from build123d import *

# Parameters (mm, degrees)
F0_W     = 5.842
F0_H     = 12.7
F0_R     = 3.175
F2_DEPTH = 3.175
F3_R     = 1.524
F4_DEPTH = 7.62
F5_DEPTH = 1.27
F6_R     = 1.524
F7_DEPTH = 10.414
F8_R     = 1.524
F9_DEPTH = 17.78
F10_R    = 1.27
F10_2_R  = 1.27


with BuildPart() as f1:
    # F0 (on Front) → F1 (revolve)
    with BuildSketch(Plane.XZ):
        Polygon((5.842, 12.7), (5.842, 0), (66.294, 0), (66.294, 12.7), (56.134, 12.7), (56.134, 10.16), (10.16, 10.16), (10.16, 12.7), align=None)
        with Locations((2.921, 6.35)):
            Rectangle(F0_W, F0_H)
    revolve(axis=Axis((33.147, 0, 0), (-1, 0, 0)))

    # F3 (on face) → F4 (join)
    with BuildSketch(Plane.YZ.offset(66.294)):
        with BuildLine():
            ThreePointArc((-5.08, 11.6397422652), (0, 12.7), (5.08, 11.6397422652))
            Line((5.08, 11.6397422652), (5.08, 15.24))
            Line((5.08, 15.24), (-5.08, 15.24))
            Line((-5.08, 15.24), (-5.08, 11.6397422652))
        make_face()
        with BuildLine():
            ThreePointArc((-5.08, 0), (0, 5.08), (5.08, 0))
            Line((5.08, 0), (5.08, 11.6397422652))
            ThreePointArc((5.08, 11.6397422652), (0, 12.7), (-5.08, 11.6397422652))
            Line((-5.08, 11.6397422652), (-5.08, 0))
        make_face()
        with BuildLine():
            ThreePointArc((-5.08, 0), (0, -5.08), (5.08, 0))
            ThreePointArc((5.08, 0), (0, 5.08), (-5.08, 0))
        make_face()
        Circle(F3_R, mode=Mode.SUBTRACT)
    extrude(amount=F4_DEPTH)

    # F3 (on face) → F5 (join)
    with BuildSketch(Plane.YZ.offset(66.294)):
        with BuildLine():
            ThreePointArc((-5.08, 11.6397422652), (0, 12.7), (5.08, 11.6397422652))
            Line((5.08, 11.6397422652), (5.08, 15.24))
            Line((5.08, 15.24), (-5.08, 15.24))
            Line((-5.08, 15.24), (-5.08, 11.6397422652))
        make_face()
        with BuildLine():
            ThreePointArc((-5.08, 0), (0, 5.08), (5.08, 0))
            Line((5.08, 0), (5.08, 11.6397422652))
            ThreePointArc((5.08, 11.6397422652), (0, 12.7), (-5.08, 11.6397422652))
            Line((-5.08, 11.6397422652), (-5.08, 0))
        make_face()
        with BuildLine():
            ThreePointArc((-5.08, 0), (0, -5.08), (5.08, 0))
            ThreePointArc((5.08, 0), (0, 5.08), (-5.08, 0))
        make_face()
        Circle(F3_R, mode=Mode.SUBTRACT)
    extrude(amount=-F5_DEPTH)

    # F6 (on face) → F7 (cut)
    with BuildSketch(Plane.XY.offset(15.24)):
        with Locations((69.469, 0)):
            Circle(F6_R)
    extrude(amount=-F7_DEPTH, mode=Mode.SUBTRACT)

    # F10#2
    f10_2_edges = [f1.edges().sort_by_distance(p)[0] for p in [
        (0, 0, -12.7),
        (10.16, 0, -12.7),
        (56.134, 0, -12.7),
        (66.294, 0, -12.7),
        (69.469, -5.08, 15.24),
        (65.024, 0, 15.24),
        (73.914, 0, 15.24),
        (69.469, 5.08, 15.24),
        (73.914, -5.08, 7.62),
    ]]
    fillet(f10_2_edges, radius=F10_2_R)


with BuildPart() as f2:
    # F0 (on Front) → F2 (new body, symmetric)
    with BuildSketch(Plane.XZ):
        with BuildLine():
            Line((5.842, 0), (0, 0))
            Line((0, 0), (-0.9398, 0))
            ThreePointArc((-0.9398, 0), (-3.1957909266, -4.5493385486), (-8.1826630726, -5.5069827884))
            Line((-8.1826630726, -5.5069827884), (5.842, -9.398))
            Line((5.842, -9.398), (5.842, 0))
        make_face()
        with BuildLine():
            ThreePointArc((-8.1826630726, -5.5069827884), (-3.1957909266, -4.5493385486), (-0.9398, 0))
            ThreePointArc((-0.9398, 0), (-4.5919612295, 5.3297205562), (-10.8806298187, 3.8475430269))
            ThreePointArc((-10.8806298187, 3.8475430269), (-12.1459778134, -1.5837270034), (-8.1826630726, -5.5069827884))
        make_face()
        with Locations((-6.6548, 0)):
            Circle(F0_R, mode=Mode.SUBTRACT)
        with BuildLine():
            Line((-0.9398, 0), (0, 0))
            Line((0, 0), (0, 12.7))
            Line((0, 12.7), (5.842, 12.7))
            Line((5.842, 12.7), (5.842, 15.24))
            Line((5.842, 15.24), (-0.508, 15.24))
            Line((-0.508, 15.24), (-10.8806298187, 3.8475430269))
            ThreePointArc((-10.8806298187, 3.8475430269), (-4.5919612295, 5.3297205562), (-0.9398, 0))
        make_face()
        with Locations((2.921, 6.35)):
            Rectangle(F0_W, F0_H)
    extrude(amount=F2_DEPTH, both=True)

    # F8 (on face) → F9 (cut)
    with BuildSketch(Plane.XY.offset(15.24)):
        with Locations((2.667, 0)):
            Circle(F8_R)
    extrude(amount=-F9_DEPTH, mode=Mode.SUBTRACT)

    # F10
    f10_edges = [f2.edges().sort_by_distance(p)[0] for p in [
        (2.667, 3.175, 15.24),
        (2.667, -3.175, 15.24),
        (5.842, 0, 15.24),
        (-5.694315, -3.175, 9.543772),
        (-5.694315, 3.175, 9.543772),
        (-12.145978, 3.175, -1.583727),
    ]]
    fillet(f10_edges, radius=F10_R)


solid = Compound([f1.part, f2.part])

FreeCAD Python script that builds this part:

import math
import FreeCAD as App
import Part
import Sketcher

V = App.Vector
Q = App.Units.Quantity


def edges_at(feature, points):
    """Names of the edges that pass closest to the given points."""
    edges = feature.Shape.Edges
    near = lambda p: min(range(len(edges)), key=lambda i: edges[i].distToShape(Part.Vertex(*p))[0])
    return sorted({f"Edge{near(p) + 1}" for p in points})


def add_polygon(sketch, points):
    """Adds a closed chain of lines whose ends are joined by coincident constraints."""
    first, n = sketch.GeometryCount, len(points)
    for a, b in zip(points, points[1:] + points[:1]):
        sketch.addGeometry(Part.LineSegment(App.Vector(*a, 0), App.Vector(*b, 0)), False)
    for i in range(n):
        sketch.addConstraint(Sketcher.Constraint("Coincident", first + i, 2, first + (i + 1) % n, 1))

doc = App.newDocument("Part")
params = doc.addObject("Spreadsheet::Sheet", "Params")
for row, (alias, value) in enumerate([
    ("sketch1_width", "0.4 in"),
    ("sketch1_height", "0.5 in"),
    ("sketch1_height2", "0.1 in"),
    ("sketch1_width2", "1.81 in"),
    ("revolution_angle", "360 deg"),
    ("sketch2_radius", "0.2 in"),
    ("sketch2_diameter", "0.12 in"),
    ("sketch2_height", "0.6 in"),
    ("pad1_length", "0.3 in"),
    ("sketch3_radius", "0.2 in"),
    ("sketch3_diameter", "0.12 in"),
    ("sketch3_height", "0.6 in"),
    ("pad2_length", "0.05 in"),
    ("sketch4_diameter", "0.12 in"),
    ("pocket1_length", "0.41 in"),
    ("fillet_radius", "0.05 in"),
    ("sketch5_diameter", "0.25 in"),
    ("sketch5_radius", "0.225 in"),
    ("sketch5_width", "0.25 in"),
    ("sketch5_height", "0.97 in"),
    ("pad3_length", "0.25 in"),
    ("sketch6_diameter", "0.12 in"),
    ("pocket2_length", "0.7 in"),
    ("fillet2_radius", "0.05 in"),
], start=1):
    params.set(f"A{row}", alias)
    params.set(f"B{row}", "=" + value)
    params.setAlias(f"B{row}", alias)

body = doc.addObject("PartDesign::Body", "Body")

# Sketch on XZ plane
sketch1 = body.newObject("Sketcher::SketchObject", "Sketch")
sketch1.AttachmentSupport = (doc.getObject("XZ_Plane"), [""])
sketch1.MapMode = "FlatFace"
add_polygon(sketch1, [(66.3, 0), (66.3, 12.7), (56.1, 12.7), (56.1, 10.2), (10.2, 10.2), (10.2, 12.7), (0, 12.7), (0, 0)])  # lines 0-7
sketch1.addConstraint(Sketcher.Constraint("Vertical", 0))
sketch1.addConstraint(Sketcher.Constraint("Horizontal", 1))
sketch1.addConstraint(Sketcher.Constraint("Vertical", 2))
sketch1.addConstraint(Sketcher.Constraint("Horizontal", 3))
sketch1.addConstraint(Sketcher.Constraint("Vertical", 4))
sketch1.addConstraint(Sketcher.Constraint("Horizontal", 5))
sketch1.addConstraint(Sketcher.Constraint("Vertical", 6))
sketch1.addConstraint(Sketcher.Constraint("Horizontal", 7))
sketch1.addConstraint(Sketcher.Constraint("Coincident", 6, 2, -1, 1))
sketch1.addConstraint(Sketcher.Constraint("Horizontal", 1, 2, 4, 2))
sketch1.addConstraint(Sketcher.Constraint("Equal", 1, 5))
sketch1.addConstraint(Sketcher.Constraint("DistanceX", 1, 2, 1, 1, Q("0.4 in")))
sketch1.addConstraint(Sketcher.Constraint("DistanceY", 0, 1, 0, 2, Q("0.5 in")))
sketch1.addConstraint(Sketcher.Constraint("DistanceY", 2, 2, 2, 1, Q("0.1 in")))
sketch1.addConstraint(Sketcher.Constraint("DistanceX", 3, 2, 3, 1, Q("1.81 in")))
sketch1.setExpression("Constraints[19]", "Params.sketch1_width")
sketch1.setExpression("Constraints[20]", "Params.sketch1_height")
sketch1.setExpression("Constraints[21]", "Params.sketch1_height2")
sketch1.setExpression("Constraints[22]", "Params.sketch1_width2")
revolution = body.newObject("PartDesign::Revolution", "Revolution")
revolution.Profile = sketch1
revolution.ReferenceAxis = (sketch1, ["H_Axis"])
revolution.setExpression("Angle", "Params.revolution_angle")

# Sketch on YZ plane
sketch2 = body.newObject("Sketcher::SketchObject", "Sketch001")
sketch2.AttachmentSupport = (doc.getObject("YZ_Plane"), [""])
sketch2.MapMode = "FlatFace"
sketch2.AttachmentOffset = App.Placement(V(0, 0, 2.61 * 25.4), App.Rotation())
sketch2.addGeometry(Part.LineSegment(V(5.1, 15.2, 0), V(-5.1, 15.2, 0)), False)
sketch2.addGeometry(Part.LineSegment(V(-5.1, 15.2, 0), V(-5.1, 0, 0)), False)
sketch2.addGeometry(Part.ArcOfCircle(Part.Circle(V(0, 0, 0), V(0, 0, 1), 5.1), math.radians(180), math.radians(360)), False)
sketch2.addGeometry(Part.LineSegment(V(5.1, 0, 0), V(5.1, 15.2, 0)), False)
sketch2.addGeometry(Part.Circle(V(0, 0, 0), V(0, 0, 1), 1.5), False)
sketch2.addConstraint(Sketcher.Constraint("Coincident", 0, 2, 1, 1))
sketch2.addConstraint(Sketcher.Constraint("Tangent", 1, 2, 2, 1))
sketch2.addConstraint(Sketcher.Constraint("Tangent", 2, 2, 3, 1))
sketch2.addConstraint(Sketcher.Constraint("Coincident", 3, 2, 0, 1))
sketch2.addConstraint(Sketcher.Constraint("Horizontal", 0))
sketch2.addConstraint(Sketcher.Constraint("Vertical", 1))
sketch2.addConstraint(Sketcher.Constraint("Vertical", 3))
sketch2.addConstraint(Sketcher.Constraint("Coincident", 2, 3, -1, 1))
sketch2.addConstraint(Sketcher.Constraint("Coincident", 4, 3, -1, 1))
sketch2.addConstraint(Sketcher.Constraint("Radius", 2, Q("0.2 in")))
sketch2.addConstraint(Sketcher.Constraint("Diameter", 4, Q("0.12 in")))
sketch2.addConstraint(Sketcher.Constraint("DistanceY", 1, 2, 1, 1, Q("0.6 in")))
sketch2.setExpression("Constraints[9]", "Params.sketch2_radius")
sketch2.setExpression("Constraints[10]", "Params.sketch2_diameter")
sketch2.setExpression("Constraints[11]", "Params.sketch2_height")
pad1 = body.newObject("PartDesign::Pad", "Pad")
pad1.Profile = sketch2
pad1.setExpression("Length", "Params.pad1_length")

# Sketch on YZ plane
sketch3 = body.newObject("Sketcher::SketchObject", "Sketch002")
sketch3.AttachmentSupport = (doc.getObject("YZ_Plane"), [""])
sketch3.MapMode = "FlatFace"
sketch3.AttachmentOffset = App.Placement(V(0, 0, 2.61 * 25.4), App.Rotation())
sketch3.addGeometry(Part.LineSegment(V(5.1, 15.2, 0), V(-5.1, 15.2, 0)), False)
sketch3.addGeometry(Part.LineSegment(V(-5.1, 15.2, 0), V(-5.1, 0, 0)), False)
sketch3.addGeometry(Part.ArcOfCircle(Part.Circle(V(0, 0, 0), V(0, 0, 1), 5.1), math.radians(180), math.radians(360)), False)
sketch3.addGeometry(Part.LineSegment(V(5.1, 0, 0), V(5.1, 15.2, 0)), False)
sketch3.addGeometry(Part.Circle(V(0, 0, 0), V(0, 0, 1), 1.5), False)
sketch3.addConstraint(Sketcher.Constraint("Coincident", 0, 2, 1, 1))
sketch3.addConstraint(Sketcher.Constraint("Tangent", 1, 2, 2, 1))
sketch3.addConstraint(Sketcher.Constraint("Tangent", 2, 2, 3, 1))
sketch3.addConstraint(Sketcher.Constraint("Coincident", 3, 2, 0, 1))
sketch3.addConstraint(Sketcher.Constraint("Horizontal", 0))
sketch3.addConstraint(Sketcher.Constraint("Vertical", 1))
sketch3.addConstraint(Sketcher.Constraint("Vertical", 3))
sketch3.addConstraint(Sketcher.Constraint("Coincident", 2, 3, -1, 1))
sketch3.addConstraint(Sketcher.Constraint("Coincident", 4, 3, -1, 1))
sketch3.addConstraint(Sketcher.Constraint("Radius", 2, Q("0.2 in")))
sketch3.addConstraint(Sketcher.Constraint("Diameter", 4, Q("0.12 in")))
sketch3.addConstraint(Sketcher.Constraint("DistanceY", 1, 2, 1, 1, Q("0.6 in")))
sketch3.setExpression("Constraints[9]", "Params.sketch3_radius")
sketch3.setExpression("Constraints[10]", "Params.sketch3_diameter")
sketch3.setExpression("Constraints[11]", "Params.sketch3_height")
pad2 = body.newObject("PartDesign::Pad", "Pad001")
pad2.Profile = sketch3
pad2.setExpression("Length", "Params.pad2_length")
pad2.Reversed = True

# Sketch on XY plane
sketch4 = body.newObject("Sketcher::SketchObject", "Sketch003")
sketch4.AttachmentSupport = (doc.getObject("XY_Plane"), [""])
sketch4.MapMode = "FlatFace"
sketch4.AttachmentOffset = App.Placement(V(0, 0, 0.6 * 25.4), App.Rotation())
sketch4.addGeometry(Part.Circle(V(69.5, 0, 0), V(0, 0, 1), 1.5), False)
sketch4.addConstraint(Sketcher.Constraint("PointOnObject", 0, 3, -1))
sketch4.addConstraint(Sketcher.Constraint("Diameter", 0, Q("0.12 in")))
sketch4.addConstraint(Sketcher.Constraint("DistanceX", -1, 1, 0, 3, Q("2.735 in")))
sketch4.setExpression("Constraints[1]", "Params.sketch4_diameter")
pocket1 = body.newObject("PartDesign::Pocket", "Pocket")
pocket1.Profile = sketch4
pocket1.setExpression("Length", "Params.pocket1_length")
doc.recompute()

fillet = body.newObject("PartDesign::Fillet", "Fillet")
fillet.Base = (pocket1, edges_at(pocket1, [
    (0, 0, -12.7),
    (10.16, 0, -12.7),
    (56.134, 0, -12.7),
    (66.294, 0, -12.7),
    (69.469, -5.08, 15.24),
    (65.024, 0, 15.24),
    (73.914, 0, 15.24),
    (69.469, 5.08, 15.24),
    (73.914, -5.08, 7.62),
]))
fillet.setExpression("Radius", "Params.fillet_radius")
body2 = doc.addObject("PartDesign::Body", "Body001")

# Sketch on XZ plane
sketch5 = body2.newObject("Sketcher::SketchObject", "Sketch004")
sketch5.AttachmentSupport = (doc.getObject("XZ_Plane001"), [""])
sketch5.MapMode = "FlatFace"
sketch5.addGeometry(Part.LineSegment(V(5.8, 15.2, 0), V(-0.5, 15.2, 0)), False)
sketch5.addGeometry(Part.LineSegment(V(-0.5, 15.2, 0), V(-10.9, 3.8, 0)), False)
sketch5.addGeometry(Part.ArcOfCircle(Part.Circle(V(-6.7, 0, 0), V(0, 0, 1), 5.7), math.radians(138), math.radians(254)), False)
sketch5.addGeometry(Part.LineSegment(V(-8.2, -5.5, 0), V(5.8, -9.4, 0)), False)
sketch5.addGeometry(Part.LineSegment(V(5.8, -9.4, 0), V(5.8, 15.2, 0)), False)
sketch5.addGeometry(Part.Circle(V(-6.7, 0, 0), V(0, 0, 1), 3.2), False)
sketch5.addConstraint(Sketcher.Constraint("Coincident", 0, 2, 1, 1))
sketch5.addConstraint(Sketcher.Constraint("Tangent", 1, 2, 2, 1))
sketch5.addConstraint(Sketcher.Constraint("Tangent", 2, 2, 3, 1))
sketch5.addConstraint(Sketcher.Constraint("Coincident", 3, 2, 4, 1))
sketch5.addConstraint(Sketcher.Constraint("Coincident", 4, 2, 0, 1))
sketch5.addConstraint(Sketcher.Constraint("Horizontal", 0))
sketch5.addConstraint(Sketcher.Constraint("Vertical", 4))
sketch5.addConstraint(Sketcher.Constraint("Coincident", 5, 3, 2, 3))
sketch5.addConstraint(Sketcher.Constraint("PointOnObject", 2, 3, -1))
sketch5.addConstraint(Sketcher.Constraint("Diameter", 5, Q("0.25 in")))
sketch5.addConstraint(Sketcher.Constraint("Radius", 2, Q("0.225 in")))
sketch5.addConstraint(Sketcher.Constraint("DistanceX", 0, 2, 0, 1, Q("0.25 in")))
sketch5.addConstraint(Sketcher.Constraint("DistanceY", 4, 1, 4, 2, Q("0.97 in")))
sketch5.addConstraint(Sketcher.Constraint("DistanceY", -1, 1, 0, 2, Q("0.6 in")))
sketch5.addConstraint(Sketcher.Constraint("DistanceX", 0, 2, -1, 1, Q("0.02 in")))
sketch5.addConstraint(Sketcher.Constraint("DistanceX", 2, 3, -1, 1, Q("0.262 in")))
sketch5.setExpression("Constraints[9]", "Params.sketch5_diameter")
sketch5.setExpression("Constraints[10]", "Params.sketch5_radius")
sketch5.setExpression("Constraints[11]", "Params.sketch5_width")
sketch5.setExpression("Constraints[12]", "Params.sketch5_height")
pad3 = body2.newObject("PartDesign::Pad", "Pad002")
pad3.Profile = sketch5
pad3.setExpression("Length", "Params.pad3_length")
pad3.Midplane = True

# Sketch on XY plane
sketch6 = body2.newObject("Sketcher::SketchObject", "Sketch005")
sketch6.AttachmentSupport = (doc.getObject("XY_Plane001"), [""])
sketch6.MapMode = "FlatFace"
sketch6.AttachmentOffset = App.Placement(V(0, 0, 0.6 * 25.4), App.Rotation())
sketch6.addGeometry(Part.Circle(V(2.7, 0, 0), V(0, 0, 1), 1.5), False)
sketch6.addConstraint(Sketcher.Constraint("PointOnObject", 0, 3, -1))
sketch6.addConstraint(Sketcher.Constraint("Diameter", 0, Q("0.12 in")))
sketch6.addConstraint(Sketcher.Constraint("DistanceX", -1, 1, 0, 3, Q("0.105 in")))
sketch6.setExpression("Constraints[1]", "Params.sketch6_diameter")
pocket2 = body2.newObject("PartDesign::Pocket", "Pocket001")
pocket2.Profile = sketch6
pocket2.setExpression("Length", "Params.pocket2_length")
doc.recompute()

fillet2 = body2.newObject("PartDesign::Fillet", "Fillet001")
fillet2.Base = (pocket2, edges_at(pocket2, [
    (2.667, 3.175, 15.24),
    (2.667, -3.175, 15.24),
    (5.842, 0, 15.24),
    (-5.694, -3.175, 9.544),
    (-5.694, 3.175, 9.544),
    (-12.146, 3.175, -1.584),
]))
fillet2.setExpression("Radius", "Params.fillet2_radius")

doc.recompute()
